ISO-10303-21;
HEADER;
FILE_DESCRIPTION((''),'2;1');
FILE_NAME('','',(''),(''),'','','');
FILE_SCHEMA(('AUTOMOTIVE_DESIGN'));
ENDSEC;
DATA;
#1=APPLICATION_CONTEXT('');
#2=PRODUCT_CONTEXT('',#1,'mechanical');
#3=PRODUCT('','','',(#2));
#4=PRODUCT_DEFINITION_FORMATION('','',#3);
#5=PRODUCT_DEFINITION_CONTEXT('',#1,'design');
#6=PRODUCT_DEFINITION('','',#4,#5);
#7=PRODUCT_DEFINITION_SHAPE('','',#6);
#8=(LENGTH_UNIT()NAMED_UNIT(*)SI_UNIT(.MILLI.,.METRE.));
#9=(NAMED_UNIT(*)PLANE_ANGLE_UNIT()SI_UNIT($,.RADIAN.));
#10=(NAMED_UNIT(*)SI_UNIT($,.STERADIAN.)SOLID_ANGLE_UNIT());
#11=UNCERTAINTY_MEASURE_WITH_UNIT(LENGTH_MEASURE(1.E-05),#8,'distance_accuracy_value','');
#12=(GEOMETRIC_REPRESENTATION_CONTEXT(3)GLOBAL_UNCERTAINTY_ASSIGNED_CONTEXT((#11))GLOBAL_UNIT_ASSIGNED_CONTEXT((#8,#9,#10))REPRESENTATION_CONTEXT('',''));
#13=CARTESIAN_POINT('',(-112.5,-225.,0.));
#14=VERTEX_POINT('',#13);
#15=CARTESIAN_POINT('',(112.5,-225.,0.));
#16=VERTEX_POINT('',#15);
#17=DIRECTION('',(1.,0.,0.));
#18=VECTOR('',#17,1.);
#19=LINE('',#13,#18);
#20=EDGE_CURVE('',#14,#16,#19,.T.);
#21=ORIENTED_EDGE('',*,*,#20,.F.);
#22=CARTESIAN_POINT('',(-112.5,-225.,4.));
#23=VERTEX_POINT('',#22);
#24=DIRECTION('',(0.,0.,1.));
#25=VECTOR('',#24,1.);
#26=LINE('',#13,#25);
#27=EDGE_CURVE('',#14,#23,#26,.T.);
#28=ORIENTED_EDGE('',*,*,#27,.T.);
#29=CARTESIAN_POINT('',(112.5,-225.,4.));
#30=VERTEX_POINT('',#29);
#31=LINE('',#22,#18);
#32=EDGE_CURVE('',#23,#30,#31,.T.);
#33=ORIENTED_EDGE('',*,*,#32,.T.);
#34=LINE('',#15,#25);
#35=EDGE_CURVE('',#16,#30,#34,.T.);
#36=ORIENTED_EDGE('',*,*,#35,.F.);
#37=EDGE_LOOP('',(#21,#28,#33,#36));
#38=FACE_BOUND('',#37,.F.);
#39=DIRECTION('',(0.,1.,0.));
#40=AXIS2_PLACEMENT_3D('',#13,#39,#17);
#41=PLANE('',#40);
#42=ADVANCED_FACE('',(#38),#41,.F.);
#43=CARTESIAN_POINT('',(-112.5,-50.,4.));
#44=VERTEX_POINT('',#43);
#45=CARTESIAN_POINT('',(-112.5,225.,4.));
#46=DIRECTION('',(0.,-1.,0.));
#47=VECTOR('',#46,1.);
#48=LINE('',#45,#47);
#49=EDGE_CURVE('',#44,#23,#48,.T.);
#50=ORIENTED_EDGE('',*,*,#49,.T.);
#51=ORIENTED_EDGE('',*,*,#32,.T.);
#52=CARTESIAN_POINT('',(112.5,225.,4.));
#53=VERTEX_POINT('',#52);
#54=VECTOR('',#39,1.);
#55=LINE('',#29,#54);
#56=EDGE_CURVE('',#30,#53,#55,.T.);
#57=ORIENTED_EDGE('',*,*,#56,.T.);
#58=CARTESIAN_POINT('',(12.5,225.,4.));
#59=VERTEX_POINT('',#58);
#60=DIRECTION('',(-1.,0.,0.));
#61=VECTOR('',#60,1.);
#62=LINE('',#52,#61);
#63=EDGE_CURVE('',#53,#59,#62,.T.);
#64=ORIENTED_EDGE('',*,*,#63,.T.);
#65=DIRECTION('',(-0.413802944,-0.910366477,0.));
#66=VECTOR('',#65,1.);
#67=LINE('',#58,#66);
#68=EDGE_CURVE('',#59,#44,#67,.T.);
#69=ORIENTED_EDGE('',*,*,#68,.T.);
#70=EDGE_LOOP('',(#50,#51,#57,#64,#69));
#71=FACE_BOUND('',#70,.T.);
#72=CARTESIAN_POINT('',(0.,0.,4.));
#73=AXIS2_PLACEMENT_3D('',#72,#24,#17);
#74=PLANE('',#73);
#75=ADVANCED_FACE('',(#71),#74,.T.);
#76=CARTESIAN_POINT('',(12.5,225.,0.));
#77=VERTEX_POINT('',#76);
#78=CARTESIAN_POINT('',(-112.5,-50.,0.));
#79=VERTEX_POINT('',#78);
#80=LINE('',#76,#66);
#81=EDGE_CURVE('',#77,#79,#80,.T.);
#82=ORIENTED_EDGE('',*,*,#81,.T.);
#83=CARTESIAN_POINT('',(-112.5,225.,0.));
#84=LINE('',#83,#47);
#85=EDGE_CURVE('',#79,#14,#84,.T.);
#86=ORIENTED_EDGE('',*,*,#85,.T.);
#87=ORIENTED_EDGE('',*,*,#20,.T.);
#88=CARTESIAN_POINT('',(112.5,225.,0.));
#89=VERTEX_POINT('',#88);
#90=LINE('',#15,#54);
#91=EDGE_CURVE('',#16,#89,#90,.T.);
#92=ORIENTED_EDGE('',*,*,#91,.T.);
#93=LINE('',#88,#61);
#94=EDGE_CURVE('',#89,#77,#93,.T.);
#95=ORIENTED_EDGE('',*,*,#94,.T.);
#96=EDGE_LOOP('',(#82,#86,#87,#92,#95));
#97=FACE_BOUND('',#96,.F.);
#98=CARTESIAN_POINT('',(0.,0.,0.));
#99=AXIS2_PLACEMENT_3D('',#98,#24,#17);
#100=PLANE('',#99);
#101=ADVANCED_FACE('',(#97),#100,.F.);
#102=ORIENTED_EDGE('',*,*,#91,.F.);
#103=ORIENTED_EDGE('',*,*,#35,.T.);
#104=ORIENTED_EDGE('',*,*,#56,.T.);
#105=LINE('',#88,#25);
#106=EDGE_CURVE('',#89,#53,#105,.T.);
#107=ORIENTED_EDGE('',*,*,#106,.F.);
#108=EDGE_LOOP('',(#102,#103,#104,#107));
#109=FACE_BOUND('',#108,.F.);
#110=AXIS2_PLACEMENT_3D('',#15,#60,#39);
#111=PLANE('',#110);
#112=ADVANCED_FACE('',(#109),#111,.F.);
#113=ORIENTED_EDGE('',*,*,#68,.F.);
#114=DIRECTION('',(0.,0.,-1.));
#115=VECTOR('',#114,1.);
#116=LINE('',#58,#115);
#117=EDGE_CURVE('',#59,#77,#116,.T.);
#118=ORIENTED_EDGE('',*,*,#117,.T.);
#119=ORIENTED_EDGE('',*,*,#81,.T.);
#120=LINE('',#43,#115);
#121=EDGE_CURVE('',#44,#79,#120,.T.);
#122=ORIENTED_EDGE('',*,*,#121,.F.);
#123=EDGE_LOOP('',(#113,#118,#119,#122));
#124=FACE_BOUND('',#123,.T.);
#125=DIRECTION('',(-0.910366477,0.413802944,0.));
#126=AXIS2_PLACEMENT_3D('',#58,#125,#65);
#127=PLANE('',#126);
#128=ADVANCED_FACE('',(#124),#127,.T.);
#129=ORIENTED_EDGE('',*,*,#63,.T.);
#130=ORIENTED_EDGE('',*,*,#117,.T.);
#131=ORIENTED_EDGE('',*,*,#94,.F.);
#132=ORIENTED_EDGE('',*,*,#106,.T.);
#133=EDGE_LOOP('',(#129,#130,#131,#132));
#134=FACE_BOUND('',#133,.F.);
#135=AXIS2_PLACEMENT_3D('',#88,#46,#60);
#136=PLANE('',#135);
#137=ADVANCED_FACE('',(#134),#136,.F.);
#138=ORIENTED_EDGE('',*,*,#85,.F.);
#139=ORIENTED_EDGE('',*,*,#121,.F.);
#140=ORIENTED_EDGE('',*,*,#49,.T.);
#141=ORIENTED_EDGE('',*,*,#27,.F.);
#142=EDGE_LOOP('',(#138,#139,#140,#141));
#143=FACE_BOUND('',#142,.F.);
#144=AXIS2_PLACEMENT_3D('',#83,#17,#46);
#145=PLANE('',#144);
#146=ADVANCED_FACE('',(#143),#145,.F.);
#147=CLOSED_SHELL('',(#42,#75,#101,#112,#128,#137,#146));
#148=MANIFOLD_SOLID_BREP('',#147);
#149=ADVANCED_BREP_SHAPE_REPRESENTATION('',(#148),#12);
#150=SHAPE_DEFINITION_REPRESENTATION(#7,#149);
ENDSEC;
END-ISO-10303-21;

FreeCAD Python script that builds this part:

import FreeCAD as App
import Part
import Sketcher
from FreeCAD import Vector

doc = App.newDocument("Part")
body = doc.addObject("PartDesign::Body", "Body")

# Sketch on XY plane
sketch1 = doc.addObject("Sketcher::SketchObject", "Sketch")
body.addObject(sketch1)
sketch1.AttachmentSupport = (doc.XY_Plane, [""])
sketch1.MapMode = "FlatFace"
sketch1.addGeometry([
    Part.LineSegment(Vector(-112, 225, 0), Vector(-112, -225, 0)),
    Part.LineSegment(Vector(-112, -225, 0), Vector(112, -225, 0)),
    Part.LineSegment(Vector(112, -225, 0), Vector(112, 225, 0)),
    Part.LineSegment(Vector(112, 225, 0), Vector(-112, 225, 0)),
], False)
sketch1.addConstraint([
    Sketcher.Constraint("Coincident", 0, 2, 1, 1),
    Sketcher.Constraint("Coincident", 1, 2, 2, 1),
    Sketcher.Constraint("Coincident", 2, 2, 3, 1),
    Sketcher.Constraint("Coincident", 3, 2, 0, 1),
    Sketcher.Constraint("Vertical", 0),
    Sketcher.Constraint("Horizontal", 1),
    Sketcher.Constraint("Vertical", 2),
    Sketcher.Constraint("Horizontal", 3),
    Sketcher.Constraint("Symmetric", 0, 2, 2, 2, -1, 1),
    Sketcher.Constraint("DistanceX", 1, 1, 1, 2, 225.0),
    Sketcher.Constraint("DistanceY", 0, 2, 0, 1, 450.0),
])
pad1 = doc.addObject("PartDesign::Pad", "Pad")
body.addObject(pad1)
pad1.Profile = sketch1
pad1.Length = 4

# Sketch on XY plane
sketch2 = doc.addObject("Sketcher::SketchObject", "Sketch001")
body.addObject(sketch2)
sketch2.AttachmentSupport = (doc.XY_Plane, [""])
sketch2.MapMode = "FlatFace"
sketch2.AttachmentOffset = App.Placement(Vector(0, 0, 4), App.Rotation())
sketch2.addGeometry([
    Part.LineSegment(Vector(12, 225, 0), Vector(-112, 225, 0)),
    Part.LineSegment(Vector(-112, 225, 0), Vector(-112, -50, 0)),
    Part.LineSegment(Vector(-112, -50, 0), Vector(12, 225, 0)),
], False)
sketch2.addConstraint([
    Sketcher.Constraint("Coincident", 0, 2, 1, 1),
    Sketcher.Constraint("Coincident", 1, 2, 2, 1),
    Sketcher.Constraint("Coincident", 2, 2, 0, 1),
    Sketcher.Constraint("Horizontal", 0),
    Sketcher.Constraint("Vertical", 1),
    Sketcher.Constraint("DistanceX", 0, 2, 0, 1, 125.0),
    Sketcher.Constraint("DistanceY", 1, 2, 1, 1, 275.0),
    Sketcher.Constraint("DistanceY", -1, 1, 0, 2, 225.0),
    Sketcher.Constraint("DistanceX", 0, 2, -1, 1, 112.5),
])
pocket1 = doc.addObject("PartDesign::Pocket", "Pocket")
body.addObject(pocket1)
pocket1.Profile = sketch2
pocket1.Length = 4

doc.recompute()
